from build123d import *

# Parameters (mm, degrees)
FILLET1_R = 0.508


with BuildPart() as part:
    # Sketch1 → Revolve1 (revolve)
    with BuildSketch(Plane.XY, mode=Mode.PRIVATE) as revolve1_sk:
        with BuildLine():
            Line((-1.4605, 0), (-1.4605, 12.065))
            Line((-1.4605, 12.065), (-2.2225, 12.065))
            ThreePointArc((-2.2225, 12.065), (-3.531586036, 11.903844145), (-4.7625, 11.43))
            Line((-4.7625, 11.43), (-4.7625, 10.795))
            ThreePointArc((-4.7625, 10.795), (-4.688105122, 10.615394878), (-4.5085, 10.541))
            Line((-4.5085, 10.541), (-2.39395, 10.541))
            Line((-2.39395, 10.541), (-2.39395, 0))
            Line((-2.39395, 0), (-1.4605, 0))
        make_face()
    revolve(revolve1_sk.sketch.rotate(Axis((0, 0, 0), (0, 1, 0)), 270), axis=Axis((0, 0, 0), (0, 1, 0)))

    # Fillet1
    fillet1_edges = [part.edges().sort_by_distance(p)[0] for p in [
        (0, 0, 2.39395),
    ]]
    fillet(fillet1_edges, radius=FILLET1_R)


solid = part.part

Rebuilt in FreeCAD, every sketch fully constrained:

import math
import FreeCAD as App
import Part
import Sketcher
from FreeCAD import Vector
Q = App.Units.Quantity


def edges_at(feature, points):
    """Names of the edges that pass closest to the given points."""
    edges = feature.Shape.Edges
    near = lambda p: min(range(len(edges)), key=lambda i: edges[i].distToShape(Part.Vertex(*p))[0])
    return sorted({f"Edge{near(p) + 1}" for p in points})

doc = App.newDocument("Part")
body = doc.addObject("PartDesign::Body", "Body")

# Sketch on XY plane
sketch1 = body.newObject("Sketcher::SketchObject", "Sketch")
sketch1.AttachmentSupport = (doc.getObject("XY_Plane"), [""])
sketch1.MapMode = "FlatFace"
sketch1.addGeometry(Part.LineSegment(Vector(-1.46, 0, 0), Vector(-1.46, 12.06, 0)), False)
sketch1.addGeometry(Part.LineSegment(Vector(-1.46, 12.06, 0), Vector(-2.22, 12.06, 0)), False)
sketch1.addGeometry(Part.ArcOfCircle(Part.Circle(Vector(-2.22, 6.67, 0), Vector(0, 0, 1), 5.4), math.radians(90), math.radians(118)), False)
sketch1.addGeometry(Part.LineSegment(Vector(-4.76, 11.43, 0), Vector(-4.76, 10.79, 0)), False)
sketch1.addGeometry(Part.ArcOfCircle(Part.Circle(Vector(-4.51, 10.8, 0), Vector(0, 0, 1), 0.25), math.radians(-180), math.radians(-90)), False)
sketch1.addGeometry(Part.LineSegment(Vector(-4.51, 10.54, 0), Vector(-2.39, 10.54, 0)), False)
sketch1.addGeometry(Part.LineSegment(Vector(-2.39, 10.54, 0), Vector(-2.39, 0, 0)), False)
sketch1.addGeometry(Part.LineSegment(Vector(-2.39, 0, 0), Vector(-1.46, 0, 0)), False)
sketch1.addConstraint(Sketcher.Constraint("Coincident", 0, 2, 1, 1))
sketch1.addConstraint(Sketcher.Constraint("Tangent", 1, 2, 2, 1))
sketch1.addConstraint(Sketcher.Constraint("Coincident", 2, 2, 3, 1))
sketch1.addConstraint(Sketcher.Constraint("Tangent", 3, 2, 4, 1))
sketch1.addConstraint(Sketcher.Constraint("Tangent", 4, 2, 5, 1))
sketch1.addConstraint(Sketcher.Constraint("Coincident", 5, 2, 6, 1))
sketch1.addConstraint(Sketcher.Constraint("Coincident", 6, 2, 7, 1))
sketch1.addConstraint(Sketcher.Constraint("Coincident", 7, 2, 0, 1))
sketch1.addConstraint(Sketcher.Constraint("Vertical", 0))
sketch1.addConstraint(Sketcher.Constraint("Horizontal", 1))
sketch1.addConstraint(Sketcher.Constraint("Vertical", 3))
sketch1.addConstraint(Sketcher.Constraint("Horizontal", 5))
sketch1.addConstraint(Sketcher.Constraint("Vertical", 6))
sketch1.addConstraint(Sketcher.Constraint("Horizontal", 7))
sketch1.addConstraint(Sketcher.Constraint("PointOnObject", 6, 2, -1))
sketch1.addConstraint(Sketcher.Constraint("Radius", 4, Q("0.01 in")))
sketch1.addConstraint(Sketcher.Constraint("DistanceX", 1, 2, 1, 1, Q("0.03 in")))
sketch1.addConstraint(Sketcher.Constraint("Radius", 2, Q("0.2125 in")))
sketch1.addConstraint(Sketcher.Constraint("DistanceX", 2, 2, 1, 2, Q("0.1 in")))
sketch1.addConstraint(Sketcher.Constraint("DistanceY", 0, 1, 0, 2, Q("0.475 in")))
sketch1.addConstraint(Sketcher.Constraint("DistanceY", 3, 2, 3, 1, Q("0.025 in")))
sketch1.addConstraint(Sketcher.Constraint("DistanceX", 2, 2, -1, 1, Q("0.1875 in")))
sketch1.addConstraint(Sketcher.Constraint("DistanceX", 5, 1, 5, 2, 2.11455))
revolution = body.newObject("PartDesign::Revolution", "Revolution")
revolution.Profile = sketch1
revolution.ReferenceAxis = (sketch1, ["V_Axis"])
revolution.Angle = 360
doc.recompute()

fillet = body.newObject("PartDesign::Fillet", "Fillet")
fillet.Base = (revolution, edges_at(revolution, [(0, 0, 2.394)]))
fillet.Radius = Q("0.02 in")

doc.recompute()
